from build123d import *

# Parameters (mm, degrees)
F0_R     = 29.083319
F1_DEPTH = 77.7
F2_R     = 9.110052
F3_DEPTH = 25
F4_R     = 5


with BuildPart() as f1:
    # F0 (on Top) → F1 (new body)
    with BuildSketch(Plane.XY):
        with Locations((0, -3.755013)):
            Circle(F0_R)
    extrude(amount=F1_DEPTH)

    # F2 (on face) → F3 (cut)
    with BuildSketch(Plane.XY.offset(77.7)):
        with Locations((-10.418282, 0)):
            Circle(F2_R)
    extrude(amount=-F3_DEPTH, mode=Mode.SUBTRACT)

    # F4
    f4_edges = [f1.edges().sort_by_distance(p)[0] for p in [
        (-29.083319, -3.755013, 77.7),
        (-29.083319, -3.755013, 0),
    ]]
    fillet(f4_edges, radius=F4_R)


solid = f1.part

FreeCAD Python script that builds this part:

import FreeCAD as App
import Part
import Sketcher


def edges_at(feature, points):
    """Names of the edges that pass closest to the given points."""
    edges = feature.Shape.Edges
    near = lambda p: min(range(len(edges)), key=lambda i: edges[i].distToShape(Part.Vertex(*p))[0])
    return sorted({f"Edge{near(p) + 1}" for p in points})

doc = App.newDocument("Part")
params = doc.addObject("Spreadsheet::Sheet", "Params")
for row, (alias, value) in enumerate([
    ("pad1_length", "77.7 mm"),
    ("pocket1_length", "25 mm"),
    ("fillet_radius", "5 mm"),
], start=1):
    params.set(f"A{row}", alias)
    params.set(f"B{row}", "=" + value)
    params.setAlias(f"B{row}", alias)

body = doc.addObject("PartDesign::Body", "Body")

# Sketch on XY plane
sketch1 = body.newObject("Sketcher::SketchObject", "Sketch")
sketch1.AttachmentSupport = (doc.getObject("XY_Plane"), [""])
sketch1.MapMode = "FlatFace"
sketch1.addGeometry(Part.Circle(App.Vector(0, -4, 0), App.Vector(0, 0, 1), 29), False)
sketch1.addConstraint([
    Sketcher.Constraint("PointOnObject", 0, 3, -2),
    Sketcher.Constraint("Diameter", 0, 58.166638),
    Sketcher.Constraint("DistanceY", 0, 3, -1, 1, 3.755013),
])
pad1 = body.newObject("PartDesign::Pad", "Pad")
pad1.Profile = sketch1
pad1.setExpression("Length", "Params.pad1_length")

# Sketch on XY plane
sketch2 = body.newObject("Sketcher::SketchObject", "Sketch001")
sketch2.AttachmentSupport = (doc.getObject("XY_Plane"), [""])
sketch2.MapMode = "FlatFace"
sketch2.AttachmentOffset = App.Placement(App.Vector(0, 0, 77.7), App.Rotation())
sketch2.addGeometry(Part.Circle(App.Vector(-10, 0, 0), App.Vector(0, 0, 1), 9), False)
sketch2.addConstraint([
    Sketcher.Constraint("PointOnObject", 0, 3, -1),
    Sketcher.Constraint("Diameter", 0, 18.220104),
    Sketcher.Constraint("DistanceX", 0, 3, -1, 1, 10.418282),
])
pocket1 = body.newObject("PartDesign::Pocket", "Pocket")
pocket1.Profile = sketch2
pocket1.setExpression("Length", "Params.pocket1_length")
doc.recompute()

fillet = body.newObject("PartDesign::Fillet", "Fillet")
fillet.Base = (pocket1, edges_at(pocket1, [(-29.083, -3.755, 77.7), (-29.083, -3.755, 0)]))
fillet.setExpression("Radius", "Params.fillet_radius")

doc.recompute()
